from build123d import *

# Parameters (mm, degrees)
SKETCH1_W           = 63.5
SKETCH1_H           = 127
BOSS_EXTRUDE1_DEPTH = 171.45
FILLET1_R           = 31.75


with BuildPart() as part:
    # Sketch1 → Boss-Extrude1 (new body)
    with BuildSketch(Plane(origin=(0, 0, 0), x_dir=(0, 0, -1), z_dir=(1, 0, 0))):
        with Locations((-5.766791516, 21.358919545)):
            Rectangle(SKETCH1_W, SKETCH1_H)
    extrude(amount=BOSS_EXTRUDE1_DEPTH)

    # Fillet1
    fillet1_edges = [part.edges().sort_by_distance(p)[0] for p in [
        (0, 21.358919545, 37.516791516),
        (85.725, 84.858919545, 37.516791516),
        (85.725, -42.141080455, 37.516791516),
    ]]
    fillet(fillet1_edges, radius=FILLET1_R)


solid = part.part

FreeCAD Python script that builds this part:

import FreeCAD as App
import Part
import Sketcher
from FreeCAD import Vector
Q = App.Units.Quantity


def edges_at(feature, points):
    """Names of the edges that pass closest to the given points."""
    edges = feature.Shape.Edges
    near = lambda p: min(range(len(edges)), key=lambda i: edges[i].distToShape(Part.Vertex(*p))[0])
    return sorted({f"Edge{near(p) + 1}" for p in points})


def add_polygon(sketch, points):
    """Adds a closed chain of lines whose ends are joined by coincident constraints."""
    first, n = sketch.GeometryCount, len(points)
    for a, b in zip(points, points[1:] + points[:1]):
        sketch.addGeometry(Part.LineSegment(App.Vector(*a, 0), App.Vector(*b, 0)), False)
    for i in range(n):
        sketch.addConstraint(Sketcher.Constraint("Coincident", first + i, 2, first + (i + 1) % n, 1))

doc = App.newDocument("Part")
params = doc.addObject("Spreadsheet::Sheet", "Params")
for row, (alias, value) in enumerate([
    ("sketch1_width", "5 in"),
    ("sketch1_height", "2.5 in"),
    ("pad1_length", "6.75 in"),
    ("fillet_radius", "1.25 in"),
], start=1):
    params.set(f"A{row}", alias)
    params.set(f"B{row}", "=" + value)
    params.setAlias(f"B{row}", alias)

body = doc.addObject("PartDesign::Body", "Body")

# Sketch on YZ plane
sketch1 = doc.addObject("Sketcher::SketchObject", "Sketch")
body.addObject(sketch1)
sketch1.AttachmentSupport = (doc.YZ_Plane, [""])
sketch1.MapMode = "FlatFace"
add_polygon(sketch1, [(85, 38), (-42, 38), (-42, -26), (85, -26)])  # lines 0-3
sketch1.addConstraint([
    Sketcher.Constraint("Horizontal", 0),
    Sketcher.Constraint("Vertical", 1),
    Sketcher.Constraint("Horizontal", 2),
    Sketcher.Constraint("Vertical", 3),
    Sketcher.Constraint("DistanceX", 0, 2, 0, 1, Q("5 in")),
    Sketcher.Constraint("DistanceY", 1, 2, 1, 1, Q("2.5 in")),
    Sketcher.Constraint("DistanceX", 0, 2, -1, 1, Q("42.14108 mm")),
    Sketcher.Constraint("DistanceY", -1, 1, 0, 2, Q("37.516792 mm")),
])
sketch1.setExpression("Constraints[8]", "Params.sketch1_width")
sketch1.setExpression("Constraints[9]", "Params.sketch1_height")
pad1 = doc.addObject("PartDesign::Pad", "Pad")
body.addObject(pad1)
pad1.Profile = sketch1
pad1.setExpression("Length", "Params.pad1_length")
doc.recompute()

fillet = doc.addObject("PartDesign::Fillet", "Fillet")
body.addObject(fillet)
fillet.Base = (pad1, edges_at(pad1, [(0, 21.359, 37.517), (85.725, 84.859, 37.517), (85.725, -42.141, 37.517)]))
fillet.setExpression("Radius", "Params.fillet_radius")

doc.recompute()
